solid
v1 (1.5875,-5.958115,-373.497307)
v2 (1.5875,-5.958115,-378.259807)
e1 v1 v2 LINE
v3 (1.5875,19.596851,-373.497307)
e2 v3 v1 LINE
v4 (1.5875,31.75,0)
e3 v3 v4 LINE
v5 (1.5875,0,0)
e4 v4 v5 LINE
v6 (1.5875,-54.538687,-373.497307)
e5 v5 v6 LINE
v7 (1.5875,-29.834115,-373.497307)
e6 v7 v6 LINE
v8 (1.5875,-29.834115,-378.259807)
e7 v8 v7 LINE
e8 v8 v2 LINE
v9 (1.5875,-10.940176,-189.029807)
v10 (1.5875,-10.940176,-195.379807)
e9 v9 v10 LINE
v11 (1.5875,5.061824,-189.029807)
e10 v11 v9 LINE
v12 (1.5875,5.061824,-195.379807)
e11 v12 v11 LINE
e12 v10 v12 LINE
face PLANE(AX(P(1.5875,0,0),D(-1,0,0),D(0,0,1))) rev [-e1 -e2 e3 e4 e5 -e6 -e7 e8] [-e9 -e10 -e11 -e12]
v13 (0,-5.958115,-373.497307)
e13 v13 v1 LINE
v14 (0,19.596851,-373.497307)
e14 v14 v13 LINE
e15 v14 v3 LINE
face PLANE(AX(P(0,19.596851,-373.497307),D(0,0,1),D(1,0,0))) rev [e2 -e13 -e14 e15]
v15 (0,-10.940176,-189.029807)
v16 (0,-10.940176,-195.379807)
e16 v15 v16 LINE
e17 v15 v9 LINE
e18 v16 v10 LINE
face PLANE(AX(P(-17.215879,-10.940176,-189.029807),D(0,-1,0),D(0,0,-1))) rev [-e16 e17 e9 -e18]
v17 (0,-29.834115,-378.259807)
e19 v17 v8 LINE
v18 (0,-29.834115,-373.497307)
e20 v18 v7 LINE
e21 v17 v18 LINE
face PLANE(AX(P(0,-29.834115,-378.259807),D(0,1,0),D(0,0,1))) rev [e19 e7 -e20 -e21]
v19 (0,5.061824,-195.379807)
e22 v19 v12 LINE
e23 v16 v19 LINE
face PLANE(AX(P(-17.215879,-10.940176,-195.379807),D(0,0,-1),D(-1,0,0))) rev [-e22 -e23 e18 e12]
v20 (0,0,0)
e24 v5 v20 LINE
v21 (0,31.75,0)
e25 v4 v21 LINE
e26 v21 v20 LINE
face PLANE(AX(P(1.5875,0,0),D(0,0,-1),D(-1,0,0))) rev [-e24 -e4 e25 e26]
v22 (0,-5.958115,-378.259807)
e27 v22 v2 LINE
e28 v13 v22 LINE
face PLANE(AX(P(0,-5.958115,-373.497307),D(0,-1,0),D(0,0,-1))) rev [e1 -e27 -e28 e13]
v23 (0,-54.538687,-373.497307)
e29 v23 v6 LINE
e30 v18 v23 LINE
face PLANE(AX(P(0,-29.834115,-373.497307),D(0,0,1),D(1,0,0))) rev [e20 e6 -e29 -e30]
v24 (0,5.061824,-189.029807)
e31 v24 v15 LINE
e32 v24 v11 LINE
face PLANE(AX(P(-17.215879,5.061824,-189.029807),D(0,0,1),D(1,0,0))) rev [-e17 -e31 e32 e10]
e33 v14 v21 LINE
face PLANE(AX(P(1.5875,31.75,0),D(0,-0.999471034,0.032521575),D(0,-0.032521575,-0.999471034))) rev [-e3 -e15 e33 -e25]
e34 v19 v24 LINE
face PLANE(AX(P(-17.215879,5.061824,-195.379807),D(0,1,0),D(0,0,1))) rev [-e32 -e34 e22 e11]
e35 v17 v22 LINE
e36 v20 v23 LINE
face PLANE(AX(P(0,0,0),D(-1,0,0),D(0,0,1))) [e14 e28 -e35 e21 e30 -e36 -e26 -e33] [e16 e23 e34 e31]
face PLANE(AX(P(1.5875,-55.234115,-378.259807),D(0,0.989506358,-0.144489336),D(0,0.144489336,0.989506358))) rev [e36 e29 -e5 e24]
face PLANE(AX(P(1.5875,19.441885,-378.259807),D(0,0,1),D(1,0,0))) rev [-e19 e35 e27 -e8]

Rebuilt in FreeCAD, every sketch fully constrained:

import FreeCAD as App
import Part
import Sketcher

V = App.Vector
Q = App.Units.Quantity

doc = App.newDocument("Part")
body = doc.addObject("PartDesign::Body", "Body")

# Sketch on YZ plane
sketch1 = body.newObject("Sketcher::SketchObject", "Sketch")
sketch1.AttachmentSupport = (doc.getObject("YZ_Plane"), [""])
sketch1.MapMode = "FlatFace"
sketch1.addGeometry([
    Part.LineSegment(V(31.75, 0, 0), V(0, 0, 0)),
    Part.LineSegment(V(0, 0, 0), V(-55.234115, -378.259807, 0)),
    Part.LineSegment(V(-55.234115, -378.259807, 0), V(19.441885, -378.259807, 0)),
    Part.LineSegment(V(19.441885, -378.259807, 0), V(31.75, 0, 0)),
], False)
sketch1.addConstraint([
    Sketcher.Constraint("Coincident", 0, 2, 1, 1),
    Sketcher.Constraint("Coincident", 1, 2, 2, 1),
    Sketcher.Constraint("Coincident", 2, 2, 3, 1),
    Sketcher.Constraint("Coincident", 3, 2, 0, 1),
    Sketcher.Constraint("Horizontal", 0),
    Sketcher.Constraint("Horizontal", 2),
    Sketcher.Constraint("Coincident", 0, 2, -1, 1),
    Sketcher.Constraint("Distance", 3, Q("14.9 in")),
    Sketcher.Constraint("DistanceX", 0, 2, 0, 1, Q("1.25 in")),
    Sketcher.Constraint("DistanceX", 2, 1, 2, 2, Q("2.94 in")),
    Sketcher.Constraint("Distance", 1, 382.271225),
])
pad1 = body.newObject("PartDesign::Pad", "Pad")
pad1.Profile = sketch1
pad1.Length = Q("0.0625 in")

# Sketch on YZ plane
sketch2 = body.newObject("Sketcher::SketchObject", "Sketch001")
sketch2.AttachmentSupport = (doc.getObject("YZ_Plane"), [""])
sketch2.MapMode = "FlatFace"
sketch2.AttachmentOffset = App.Placement(V(0, 0, 0.0625 * 25.4), App.Rotation())
sketch2.addGeometry([
    Part.LineSegment(V(-55.234115, -378.259807, 0), V(-29.834115, -378.259807, 0)),  # 0
    Part.LineSegment(V(-29.834115, -378.259807, 0), V(-29.834115, -373.497307, 0)),  # 1
    Part.LineSegment(V(-29.834115, -373.497307, 0), V(-54.538687, -373.497307, 0)),  # 2
    Part.LineSegment(V(-54.538687, -373.497307, 0), V(-55.234115, -378.259807, 0)),  # 3
    Part.LineSegment(V(19.441885, -378.259807, 0), V(19.596851, -373.497307, 0)),  # 4
    Part.LineSegment(V(19.596851, -373.497307, 0), V(-5.958115, -373.497307, 0)),  # 5
    Part.LineSegment(V(-5.958115, -373.497307, 0), V(-5.958115, -378.259807, 0)),  # 6
    Part.LineSegment(V(-5.958115, -378.259807, 0), V(19.441885, -378.259807, 0)),  # 7
], False)
sketch2.addConstraint([
    Sketcher.Constraint("Coincident", 0, 2, 1, 1),
    Sketcher.Constraint("Coincident", 1, 2, 2, 1),
    Sketcher.Constraint("Coincident", 2, 2, 3, 1),
    Sketcher.Constraint("Coincident", 3, 2, 0, 1),
    Sketcher.Constraint("Coincident", 4, 2, 5, 1),
    Sketcher.Constraint("Coincident", 5, 2, 6, 1),
    Sketcher.Constraint("Coincident", 6, 2, 7, 1),
    Sketcher.Constraint("Coincident", 7, 2, 4, 1),
    Sketcher.Constraint("Horizontal", 0),
    Sketcher.Constraint("Vertical", 1),
    Sketcher.Constraint("Horizontal", 2),
    Sketcher.Constraint("Horizontal", 5),
    Sketcher.Constraint("Vertical", 6),
    Sketcher.Constraint("Horizontal", 7),
    Sketcher.Constraint("Horizontal", 2, 2, 4, 2),
    Sketcher.Constraint("Horizontal", 3, 2, 6, 2),
    Sketcher.Constraint("Equal", 0, 7),
    Sketcher.Constraint("DistanceX", 0, 1, 0, 2, Q("1 in")),
    Sketcher.Constraint("DistanceY", 1, 1, 1, 2, Q("0.1875 in")),
    Sketcher.Constraint("DistanceX", 1, 2, 5, 2, Q("0.94 in")),
    Sketcher.Constraint("DistanceX", 2, 2, 2, 1, 24.704572),
    Sketcher.Constraint("Distance", 4, 4.765021),
    Sketcher.Constraint("DistanceX", -1, 1, 4, 2, 19.596851),
    Sketcher.Constraint("DistanceY", 0, 2, -1, 1, 378.259807),
])
pocket1 = body.newObject("PartDesign::Pocket", "Pocket")
pocket1.Profile = sketch2
pocket1.Type = "ThroughAll"

# Sketch on YZ plane
sketch3 = body.newObject("Sketcher::SketchObject", "Sketch002")
sketch3.AttachmentSupport = (doc.getObject("YZ_Plane"), [""])
sketch3.MapMode = "FlatFace"
sketch3.AttachmentOffset = App.Placement(V(0, 0, 0.0625 * 25.4), App.Rotation())
sketch3.addGeometry([
    Part.LineSegment(V(5.061824, -189.029807, 0), V(-10.940176, -189.029807, 0)),
    Part.LineSegment(V(-10.940176, -189.029807, 0), V(-10.940176, -195.379807, 0)),
    Part.LineSegment(V(-10.940176, -195.379807, 0), V(5.061824, -195.379807, 0)),
    Part.LineSegment(V(5.061824, -195.379807, 0), V(5.061824, -189.029807, 0)),
], False)
sketch3.addConstraint([
    Sketcher.Constraint("Coincident", 0, 2, 1, 1),
    Sketcher.Constraint("Coincident", 1, 2, 2, 1),
    Sketcher.Constraint("Coincident", 2, 2, 3, 1),
    Sketcher.Constraint("Coincident", 3, 2, 0, 1),
    Sketcher.Constraint("Horizontal", 0),
    Sketcher.Constraint("Vertical", 1),
    Sketcher.Constraint("Horizontal", 2),
    Sketcher.Constraint("Vertical", 3),
    Sketcher.Constraint("DistanceX", 0, 2, 0, 1, Q("0.63 in")),
    Sketcher.Constraint("DistanceY", 1, 2, 1, 1, Q("0.25 in")),
    Sketcher.Constraint("DistanceX", 0, 2, -1, 1, 10.940176),
    Sketcher.Constraint("DistanceY", 0, 2, -1, 1, 189.029807),
])
pocket2 = body.newObject("PartDesign::Pocket", "Pocket001")
pocket2.Profile = sketch3
pocket2.Length = Q("0.0625 in")

doc.recompute()
